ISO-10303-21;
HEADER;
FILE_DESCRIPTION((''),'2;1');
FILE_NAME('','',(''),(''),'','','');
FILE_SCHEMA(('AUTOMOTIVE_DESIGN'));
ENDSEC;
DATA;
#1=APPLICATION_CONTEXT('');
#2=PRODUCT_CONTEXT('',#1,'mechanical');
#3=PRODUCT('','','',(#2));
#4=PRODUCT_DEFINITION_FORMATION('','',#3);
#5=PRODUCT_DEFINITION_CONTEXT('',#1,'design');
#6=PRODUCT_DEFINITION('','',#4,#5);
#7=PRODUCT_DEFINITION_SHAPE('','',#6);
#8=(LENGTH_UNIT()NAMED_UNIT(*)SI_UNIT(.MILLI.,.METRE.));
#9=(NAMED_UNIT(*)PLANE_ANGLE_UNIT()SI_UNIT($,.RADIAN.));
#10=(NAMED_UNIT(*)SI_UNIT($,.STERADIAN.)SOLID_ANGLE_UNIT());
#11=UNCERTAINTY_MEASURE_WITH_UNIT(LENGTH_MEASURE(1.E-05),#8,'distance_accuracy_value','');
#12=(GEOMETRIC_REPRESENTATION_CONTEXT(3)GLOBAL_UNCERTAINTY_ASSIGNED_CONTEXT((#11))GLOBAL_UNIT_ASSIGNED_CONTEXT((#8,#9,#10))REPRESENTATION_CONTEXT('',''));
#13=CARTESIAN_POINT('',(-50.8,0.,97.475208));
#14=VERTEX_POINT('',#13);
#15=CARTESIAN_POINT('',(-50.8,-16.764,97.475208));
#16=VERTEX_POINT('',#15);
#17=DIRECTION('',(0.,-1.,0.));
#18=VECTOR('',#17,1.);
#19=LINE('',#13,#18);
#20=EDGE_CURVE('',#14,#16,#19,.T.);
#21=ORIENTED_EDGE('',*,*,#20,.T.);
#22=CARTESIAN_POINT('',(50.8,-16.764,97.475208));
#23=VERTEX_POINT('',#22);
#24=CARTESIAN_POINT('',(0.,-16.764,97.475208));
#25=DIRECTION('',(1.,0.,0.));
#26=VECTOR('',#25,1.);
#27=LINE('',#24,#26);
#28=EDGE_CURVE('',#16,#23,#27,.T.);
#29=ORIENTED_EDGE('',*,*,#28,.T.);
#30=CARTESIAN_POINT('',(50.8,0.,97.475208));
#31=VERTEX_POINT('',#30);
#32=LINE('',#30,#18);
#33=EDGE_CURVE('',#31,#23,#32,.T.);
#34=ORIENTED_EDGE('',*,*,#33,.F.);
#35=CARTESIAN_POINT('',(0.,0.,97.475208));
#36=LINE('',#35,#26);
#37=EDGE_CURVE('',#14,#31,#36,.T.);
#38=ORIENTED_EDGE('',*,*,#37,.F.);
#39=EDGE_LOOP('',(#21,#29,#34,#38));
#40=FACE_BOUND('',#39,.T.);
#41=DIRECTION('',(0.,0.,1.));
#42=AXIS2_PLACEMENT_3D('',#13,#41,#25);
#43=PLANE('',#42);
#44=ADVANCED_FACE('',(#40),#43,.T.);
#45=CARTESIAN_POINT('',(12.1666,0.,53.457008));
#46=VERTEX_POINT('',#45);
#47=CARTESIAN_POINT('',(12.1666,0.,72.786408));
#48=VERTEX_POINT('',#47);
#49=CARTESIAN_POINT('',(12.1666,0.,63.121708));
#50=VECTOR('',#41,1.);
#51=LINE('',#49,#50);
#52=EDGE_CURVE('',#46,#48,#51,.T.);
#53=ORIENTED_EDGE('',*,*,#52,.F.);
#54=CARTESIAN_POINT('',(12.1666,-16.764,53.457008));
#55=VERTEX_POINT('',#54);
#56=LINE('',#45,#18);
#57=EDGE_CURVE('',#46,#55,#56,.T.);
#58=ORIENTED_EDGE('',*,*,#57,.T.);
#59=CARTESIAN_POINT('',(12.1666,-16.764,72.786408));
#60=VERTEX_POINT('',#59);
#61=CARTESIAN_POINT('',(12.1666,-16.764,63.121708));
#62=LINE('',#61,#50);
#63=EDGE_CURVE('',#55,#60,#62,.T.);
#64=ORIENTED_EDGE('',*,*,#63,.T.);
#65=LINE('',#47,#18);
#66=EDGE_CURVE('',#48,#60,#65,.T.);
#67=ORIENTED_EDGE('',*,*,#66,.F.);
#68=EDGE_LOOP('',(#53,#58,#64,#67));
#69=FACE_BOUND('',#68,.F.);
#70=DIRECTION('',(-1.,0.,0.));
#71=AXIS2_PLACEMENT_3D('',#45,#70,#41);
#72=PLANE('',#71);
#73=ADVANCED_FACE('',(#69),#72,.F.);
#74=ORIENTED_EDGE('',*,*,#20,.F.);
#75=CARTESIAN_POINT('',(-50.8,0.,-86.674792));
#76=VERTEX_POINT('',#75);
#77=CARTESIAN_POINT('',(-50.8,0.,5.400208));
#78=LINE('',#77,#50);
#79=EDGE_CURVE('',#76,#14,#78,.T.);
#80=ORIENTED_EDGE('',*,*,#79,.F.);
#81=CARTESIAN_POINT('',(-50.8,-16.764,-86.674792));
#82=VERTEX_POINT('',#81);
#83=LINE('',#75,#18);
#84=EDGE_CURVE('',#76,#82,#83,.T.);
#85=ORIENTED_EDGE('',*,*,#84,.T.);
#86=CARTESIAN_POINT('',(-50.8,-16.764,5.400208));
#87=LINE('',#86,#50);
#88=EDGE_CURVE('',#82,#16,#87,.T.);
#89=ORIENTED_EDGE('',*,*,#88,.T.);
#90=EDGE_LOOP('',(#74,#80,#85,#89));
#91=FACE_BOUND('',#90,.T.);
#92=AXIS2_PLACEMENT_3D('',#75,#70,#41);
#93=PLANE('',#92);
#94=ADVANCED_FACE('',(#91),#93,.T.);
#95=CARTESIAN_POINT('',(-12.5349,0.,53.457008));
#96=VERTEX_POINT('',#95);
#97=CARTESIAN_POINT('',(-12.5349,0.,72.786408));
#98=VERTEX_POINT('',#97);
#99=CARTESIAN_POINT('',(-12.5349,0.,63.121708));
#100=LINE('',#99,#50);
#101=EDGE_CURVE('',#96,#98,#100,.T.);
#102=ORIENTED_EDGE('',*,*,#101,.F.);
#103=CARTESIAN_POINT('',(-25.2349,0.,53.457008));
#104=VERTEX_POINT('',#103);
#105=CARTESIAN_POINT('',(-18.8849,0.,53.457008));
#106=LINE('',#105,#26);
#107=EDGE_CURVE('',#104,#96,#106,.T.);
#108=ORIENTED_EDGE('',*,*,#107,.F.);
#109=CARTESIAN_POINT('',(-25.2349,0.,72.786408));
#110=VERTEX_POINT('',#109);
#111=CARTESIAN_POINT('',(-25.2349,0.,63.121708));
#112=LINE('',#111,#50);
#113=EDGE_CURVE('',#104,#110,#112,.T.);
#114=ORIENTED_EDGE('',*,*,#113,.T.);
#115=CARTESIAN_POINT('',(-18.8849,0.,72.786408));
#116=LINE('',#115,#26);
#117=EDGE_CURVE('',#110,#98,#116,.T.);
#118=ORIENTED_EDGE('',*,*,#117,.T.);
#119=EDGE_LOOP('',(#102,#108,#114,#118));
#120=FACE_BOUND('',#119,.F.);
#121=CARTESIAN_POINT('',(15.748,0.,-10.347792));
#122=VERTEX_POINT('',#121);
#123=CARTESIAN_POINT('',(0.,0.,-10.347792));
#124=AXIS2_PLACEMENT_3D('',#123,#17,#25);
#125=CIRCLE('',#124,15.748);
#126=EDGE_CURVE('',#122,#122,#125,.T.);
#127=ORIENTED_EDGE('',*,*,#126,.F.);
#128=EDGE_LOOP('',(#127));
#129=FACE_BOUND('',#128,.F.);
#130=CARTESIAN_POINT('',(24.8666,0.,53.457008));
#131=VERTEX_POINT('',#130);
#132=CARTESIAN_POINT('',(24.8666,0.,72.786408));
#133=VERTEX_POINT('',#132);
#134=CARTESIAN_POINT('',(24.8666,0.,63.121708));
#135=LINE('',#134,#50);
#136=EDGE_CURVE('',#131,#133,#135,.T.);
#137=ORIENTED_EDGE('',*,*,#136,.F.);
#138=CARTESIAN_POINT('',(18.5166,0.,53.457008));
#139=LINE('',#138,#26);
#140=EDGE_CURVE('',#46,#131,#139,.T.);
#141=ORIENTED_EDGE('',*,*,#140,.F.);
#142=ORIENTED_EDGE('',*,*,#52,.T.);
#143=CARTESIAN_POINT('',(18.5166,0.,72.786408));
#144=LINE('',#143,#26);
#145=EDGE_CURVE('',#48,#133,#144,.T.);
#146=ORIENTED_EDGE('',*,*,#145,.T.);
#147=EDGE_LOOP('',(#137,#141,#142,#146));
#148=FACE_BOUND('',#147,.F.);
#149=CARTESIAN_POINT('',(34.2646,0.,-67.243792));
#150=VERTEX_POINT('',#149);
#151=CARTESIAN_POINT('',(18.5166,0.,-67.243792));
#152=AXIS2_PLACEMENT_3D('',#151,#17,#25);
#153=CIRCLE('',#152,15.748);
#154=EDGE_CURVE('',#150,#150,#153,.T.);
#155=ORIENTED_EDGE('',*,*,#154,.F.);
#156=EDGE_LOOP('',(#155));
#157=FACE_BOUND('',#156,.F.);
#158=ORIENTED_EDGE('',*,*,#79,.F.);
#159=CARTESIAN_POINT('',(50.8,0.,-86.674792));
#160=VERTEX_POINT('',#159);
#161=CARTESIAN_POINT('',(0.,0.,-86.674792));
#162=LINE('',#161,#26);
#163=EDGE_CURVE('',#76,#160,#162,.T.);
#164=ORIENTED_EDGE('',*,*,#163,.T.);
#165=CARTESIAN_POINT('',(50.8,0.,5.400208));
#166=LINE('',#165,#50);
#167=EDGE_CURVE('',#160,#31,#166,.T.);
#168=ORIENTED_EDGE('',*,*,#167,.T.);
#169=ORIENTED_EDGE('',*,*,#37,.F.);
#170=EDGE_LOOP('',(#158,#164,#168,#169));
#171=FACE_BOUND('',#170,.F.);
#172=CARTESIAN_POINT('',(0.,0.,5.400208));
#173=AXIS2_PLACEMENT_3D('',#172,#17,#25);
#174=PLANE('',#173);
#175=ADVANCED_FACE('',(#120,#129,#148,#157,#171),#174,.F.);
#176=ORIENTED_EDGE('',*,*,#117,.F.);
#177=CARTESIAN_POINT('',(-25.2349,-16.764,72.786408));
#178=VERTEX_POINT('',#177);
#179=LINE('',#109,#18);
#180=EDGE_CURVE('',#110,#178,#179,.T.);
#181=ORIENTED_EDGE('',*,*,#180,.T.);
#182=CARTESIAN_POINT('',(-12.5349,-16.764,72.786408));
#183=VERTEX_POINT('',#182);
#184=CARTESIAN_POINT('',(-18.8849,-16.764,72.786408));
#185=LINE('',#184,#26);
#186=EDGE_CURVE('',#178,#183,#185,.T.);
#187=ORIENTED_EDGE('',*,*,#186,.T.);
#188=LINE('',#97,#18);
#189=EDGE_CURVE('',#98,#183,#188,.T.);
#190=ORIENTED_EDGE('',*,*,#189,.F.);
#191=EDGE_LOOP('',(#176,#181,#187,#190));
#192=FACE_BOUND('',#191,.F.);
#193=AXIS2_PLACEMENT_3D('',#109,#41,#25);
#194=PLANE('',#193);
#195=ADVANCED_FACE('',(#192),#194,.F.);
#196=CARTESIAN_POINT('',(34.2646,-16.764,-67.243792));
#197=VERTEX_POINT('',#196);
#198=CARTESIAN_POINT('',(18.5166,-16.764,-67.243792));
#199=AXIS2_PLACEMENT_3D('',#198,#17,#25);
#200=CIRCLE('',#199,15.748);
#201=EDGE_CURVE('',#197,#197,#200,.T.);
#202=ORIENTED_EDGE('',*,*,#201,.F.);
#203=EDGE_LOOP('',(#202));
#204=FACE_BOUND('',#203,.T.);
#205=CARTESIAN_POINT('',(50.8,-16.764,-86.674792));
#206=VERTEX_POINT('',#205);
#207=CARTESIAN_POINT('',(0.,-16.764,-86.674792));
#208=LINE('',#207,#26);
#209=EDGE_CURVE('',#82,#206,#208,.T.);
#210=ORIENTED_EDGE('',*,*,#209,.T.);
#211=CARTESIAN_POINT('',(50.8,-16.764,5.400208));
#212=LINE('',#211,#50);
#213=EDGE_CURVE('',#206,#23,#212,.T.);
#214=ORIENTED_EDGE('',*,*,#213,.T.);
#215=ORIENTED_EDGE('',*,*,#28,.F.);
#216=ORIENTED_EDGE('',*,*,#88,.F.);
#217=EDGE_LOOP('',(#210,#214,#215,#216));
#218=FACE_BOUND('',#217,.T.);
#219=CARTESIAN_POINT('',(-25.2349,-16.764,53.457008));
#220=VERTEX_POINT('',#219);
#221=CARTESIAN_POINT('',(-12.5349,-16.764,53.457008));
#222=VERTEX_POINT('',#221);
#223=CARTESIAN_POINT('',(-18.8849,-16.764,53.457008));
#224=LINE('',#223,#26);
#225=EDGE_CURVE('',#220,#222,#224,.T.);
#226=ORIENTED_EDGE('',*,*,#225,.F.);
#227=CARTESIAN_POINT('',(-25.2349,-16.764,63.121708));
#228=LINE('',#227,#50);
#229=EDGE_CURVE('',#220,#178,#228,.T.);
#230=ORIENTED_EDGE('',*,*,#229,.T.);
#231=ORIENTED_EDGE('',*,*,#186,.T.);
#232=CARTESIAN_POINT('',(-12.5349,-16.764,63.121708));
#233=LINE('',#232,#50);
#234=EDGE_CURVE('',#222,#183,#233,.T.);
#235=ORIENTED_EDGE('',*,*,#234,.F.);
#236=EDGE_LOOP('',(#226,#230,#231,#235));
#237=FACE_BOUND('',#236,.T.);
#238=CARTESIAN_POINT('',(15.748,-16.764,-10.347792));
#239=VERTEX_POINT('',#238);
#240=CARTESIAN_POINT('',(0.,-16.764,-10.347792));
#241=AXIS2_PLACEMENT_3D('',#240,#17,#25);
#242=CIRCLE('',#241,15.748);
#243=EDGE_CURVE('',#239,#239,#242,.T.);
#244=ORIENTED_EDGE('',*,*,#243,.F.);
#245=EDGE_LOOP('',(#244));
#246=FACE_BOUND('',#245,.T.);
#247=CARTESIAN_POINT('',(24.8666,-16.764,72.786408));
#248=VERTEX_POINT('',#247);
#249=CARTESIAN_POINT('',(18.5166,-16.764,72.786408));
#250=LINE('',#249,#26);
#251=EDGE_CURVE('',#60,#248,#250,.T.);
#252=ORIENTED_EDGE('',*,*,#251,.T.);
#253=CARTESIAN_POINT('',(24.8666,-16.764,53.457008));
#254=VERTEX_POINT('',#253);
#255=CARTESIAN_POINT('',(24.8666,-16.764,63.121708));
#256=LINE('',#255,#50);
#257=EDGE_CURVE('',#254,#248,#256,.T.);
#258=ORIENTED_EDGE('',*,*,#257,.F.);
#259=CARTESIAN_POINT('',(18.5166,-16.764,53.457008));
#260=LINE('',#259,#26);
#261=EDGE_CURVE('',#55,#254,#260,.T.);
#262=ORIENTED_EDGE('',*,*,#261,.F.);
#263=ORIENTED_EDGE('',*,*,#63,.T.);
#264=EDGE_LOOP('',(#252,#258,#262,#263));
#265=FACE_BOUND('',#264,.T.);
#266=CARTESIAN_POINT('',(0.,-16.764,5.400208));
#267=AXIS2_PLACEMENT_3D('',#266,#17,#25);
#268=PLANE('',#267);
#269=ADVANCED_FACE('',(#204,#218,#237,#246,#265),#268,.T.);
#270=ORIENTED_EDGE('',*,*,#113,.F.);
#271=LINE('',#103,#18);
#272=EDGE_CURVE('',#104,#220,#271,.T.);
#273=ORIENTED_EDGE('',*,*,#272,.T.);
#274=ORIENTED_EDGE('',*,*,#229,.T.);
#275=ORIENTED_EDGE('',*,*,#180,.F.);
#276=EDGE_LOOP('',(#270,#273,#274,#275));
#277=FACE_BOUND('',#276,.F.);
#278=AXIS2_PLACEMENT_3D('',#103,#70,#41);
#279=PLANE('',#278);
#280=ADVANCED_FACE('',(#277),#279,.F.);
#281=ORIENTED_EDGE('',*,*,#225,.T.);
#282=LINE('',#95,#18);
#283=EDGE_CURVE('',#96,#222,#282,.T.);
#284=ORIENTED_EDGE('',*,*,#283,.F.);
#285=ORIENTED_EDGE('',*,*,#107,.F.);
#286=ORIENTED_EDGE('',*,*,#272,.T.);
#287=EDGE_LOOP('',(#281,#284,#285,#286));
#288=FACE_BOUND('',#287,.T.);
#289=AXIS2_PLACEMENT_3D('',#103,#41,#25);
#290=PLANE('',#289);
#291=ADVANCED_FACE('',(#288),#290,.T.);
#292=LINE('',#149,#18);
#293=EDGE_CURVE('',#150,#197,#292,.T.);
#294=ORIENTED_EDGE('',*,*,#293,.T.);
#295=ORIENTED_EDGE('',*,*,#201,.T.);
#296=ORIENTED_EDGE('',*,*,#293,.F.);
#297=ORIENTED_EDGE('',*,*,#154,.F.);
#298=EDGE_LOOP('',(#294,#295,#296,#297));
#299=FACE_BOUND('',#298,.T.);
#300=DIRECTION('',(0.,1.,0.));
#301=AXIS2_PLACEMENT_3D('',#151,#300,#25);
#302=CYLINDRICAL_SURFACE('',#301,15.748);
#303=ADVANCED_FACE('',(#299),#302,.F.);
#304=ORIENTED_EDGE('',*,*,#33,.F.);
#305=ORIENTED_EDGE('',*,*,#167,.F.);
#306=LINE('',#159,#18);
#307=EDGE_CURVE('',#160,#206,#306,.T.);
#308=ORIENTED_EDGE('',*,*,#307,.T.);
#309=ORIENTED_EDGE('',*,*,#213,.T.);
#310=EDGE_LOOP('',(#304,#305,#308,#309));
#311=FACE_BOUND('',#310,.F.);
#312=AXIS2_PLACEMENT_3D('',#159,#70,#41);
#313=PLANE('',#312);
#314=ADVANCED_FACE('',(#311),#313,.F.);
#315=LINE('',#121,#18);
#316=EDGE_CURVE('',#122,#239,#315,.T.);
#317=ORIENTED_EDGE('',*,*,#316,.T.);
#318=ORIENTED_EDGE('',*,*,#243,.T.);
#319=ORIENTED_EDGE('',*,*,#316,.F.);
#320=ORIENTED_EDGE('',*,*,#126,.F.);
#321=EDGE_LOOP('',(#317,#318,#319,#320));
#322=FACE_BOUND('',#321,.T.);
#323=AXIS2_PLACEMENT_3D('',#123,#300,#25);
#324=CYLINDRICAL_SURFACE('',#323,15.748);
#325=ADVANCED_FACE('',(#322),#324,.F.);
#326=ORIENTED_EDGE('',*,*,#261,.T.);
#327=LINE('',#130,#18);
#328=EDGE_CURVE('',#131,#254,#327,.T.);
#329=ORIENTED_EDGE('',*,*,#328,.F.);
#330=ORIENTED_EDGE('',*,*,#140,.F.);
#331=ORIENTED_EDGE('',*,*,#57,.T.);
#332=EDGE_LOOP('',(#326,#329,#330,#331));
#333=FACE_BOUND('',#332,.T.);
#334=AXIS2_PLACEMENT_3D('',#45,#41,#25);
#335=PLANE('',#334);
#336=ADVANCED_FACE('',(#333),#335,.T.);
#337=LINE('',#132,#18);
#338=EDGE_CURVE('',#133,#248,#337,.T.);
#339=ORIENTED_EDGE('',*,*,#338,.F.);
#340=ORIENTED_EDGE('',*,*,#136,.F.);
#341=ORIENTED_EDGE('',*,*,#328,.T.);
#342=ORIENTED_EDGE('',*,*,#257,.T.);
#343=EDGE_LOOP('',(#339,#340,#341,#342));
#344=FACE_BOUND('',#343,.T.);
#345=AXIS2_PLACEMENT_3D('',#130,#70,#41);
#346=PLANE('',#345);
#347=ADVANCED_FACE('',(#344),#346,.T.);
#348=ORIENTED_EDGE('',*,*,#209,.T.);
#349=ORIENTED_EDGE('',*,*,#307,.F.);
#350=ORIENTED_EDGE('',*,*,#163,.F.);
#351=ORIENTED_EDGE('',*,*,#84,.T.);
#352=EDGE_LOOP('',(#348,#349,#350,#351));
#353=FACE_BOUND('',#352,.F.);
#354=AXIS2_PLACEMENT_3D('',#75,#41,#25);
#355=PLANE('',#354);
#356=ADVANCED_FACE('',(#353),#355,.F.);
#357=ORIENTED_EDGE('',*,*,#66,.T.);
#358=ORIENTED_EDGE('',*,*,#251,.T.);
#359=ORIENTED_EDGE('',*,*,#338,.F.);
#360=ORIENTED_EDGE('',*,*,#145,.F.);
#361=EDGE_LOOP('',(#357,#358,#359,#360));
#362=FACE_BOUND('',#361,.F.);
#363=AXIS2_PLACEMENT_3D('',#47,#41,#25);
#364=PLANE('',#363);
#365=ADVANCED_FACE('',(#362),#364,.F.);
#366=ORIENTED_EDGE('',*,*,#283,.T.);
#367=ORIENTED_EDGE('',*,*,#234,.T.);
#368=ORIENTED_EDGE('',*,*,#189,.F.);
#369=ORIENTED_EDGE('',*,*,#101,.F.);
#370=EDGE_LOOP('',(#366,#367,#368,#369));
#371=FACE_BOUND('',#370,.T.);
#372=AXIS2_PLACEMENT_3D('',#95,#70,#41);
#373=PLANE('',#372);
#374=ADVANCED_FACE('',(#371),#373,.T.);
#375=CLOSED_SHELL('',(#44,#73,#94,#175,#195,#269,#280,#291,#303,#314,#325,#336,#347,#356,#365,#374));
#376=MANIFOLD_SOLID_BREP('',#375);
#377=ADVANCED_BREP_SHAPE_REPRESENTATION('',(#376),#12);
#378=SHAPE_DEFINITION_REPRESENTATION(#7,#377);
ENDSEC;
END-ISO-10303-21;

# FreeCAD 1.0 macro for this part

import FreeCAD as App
import Part
import Sketcher
Q = App.Units.Quantity

doc = App.newDocument("Part")
body = doc.addObject("PartDesign::Body", "Body")

# Sketch on XZ plane
sketch1 = body.newObject("Sketcher::SketchObject", "Sketch")
sketch1.AttachmentSupport = (doc.getObject("XZ_Plane"), [""])
sketch1.MapMode = "FlatFace"
sketch1.addGeometry(Part.LineSegment(App.Vector(-51, 97, 0), App.Vector(-51, -87, 0)), False)
sketch1.addGeometry(Part.LineSegment(App.Vector(-51, -87, 0), App.Vector(51, -87, 0)), False)
sketch1.addGeometry(Part.LineSegment(App.Vector(51, -87, 0), App.Vector(51, 97, 0)), False)
sketch1.addGeometry(Part.LineSegment(App.Vector(51, 97, 0), App.Vector(-51, 97, 0)), False)
sketch1.addGeometry(Part.Circle(App.Vector(0, -10, 0), App.Vector(0, 0, 1), 16), False)
sketch1.addGeometry(Part.Circle(App.Vector(19, -67, 0), App.Vector(0, 0, 1), 16), False)
sketch1.addGeometry(Part.LineSegment(App.Vector(-13, 53, 0), App.Vector(-25, 53, 0)), False)
sketch1.addGeometry(Part.LineSegment(App.Vector(-25, 53, 0), App.Vector(-25, 73, 0)), False)
sketch1.addGeometry(Part.LineSegment(App.Vector(-25, 73, 0), App.Vector(-13, 73, 0)), False)
sketch1.addGeometry(Part.LineSegment(App.Vector(-13, 73, 0), App.Vector(-13, 53, 0)), False)
sketch1.addGeometry(Part.LineSegment(App.Vector(25, 53, 0), App.Vector(12, 53, 0)), False)
sketch1.addGeometry(Part.LineSegment(App.Vector(12, 53, 0), App.Vector(12, 73, 0)), False)
sketch1.addGeometry(Part.LineSegment(App.Vector(12, 73, 0), App.Vector(25, 73, 0)), False)
sketch1.addGeometry(Part.LineSegment(App.Vector(25, 73, 0), App.Vector(25, 53, 0)), False)
sketch1.addConstraint(Sketcher.Constraint("Coincident", 0, 2, 1, 1))
sketch1.addConstraint(Sketcher.Constraint("Coincident", 1, 2, 2, 1))
sketch1.addConstraint(Sketcher.Constraint("Coincident", 2, 2, 3, 1))
sketch1.addConstraint(Sketcher.Constraint("Coincident", 3, 2, 0, 1))
sketch1.addConstraint(Sketcher.Constraint("Coincident", 6, 2, 7, 1))
sketch1.addConstraint(Sketcher.Constraint("Coincident", 7, 2, 8, 1))
sketch1.addConstraint(Sketcher.Constraint("Coincident", 8, 2, 9, 1))
sketch1.addConstraint(Sketcher.Constraint("Coincident", 9, 2, 6, 1))
sketch1.addConstraint(Sketcher.Constraint("Coincident", 10, 2, 11, 1))
sketch1.addConstraint(Sketcher.Constraint("Coincident", 11, 2, 12, 1))
sketch1.addConstraint(Sketcher.Constraint("Coincident", 12, 2, 13, 1))
sketch1.addConstraint(Sketcher.Constraint("Coincident", 13, 2, 10, 1))
sketch1.addConstraint(Sketcher.Constraint("Vertical", 0))
sketch1.addConstraint(Sketcher.Constraint("Horizontal", 1))
sketch1.addConstraint(Sketcher.Constraint("Vertical", 2))
sketch1.addConstraint(Sketcher.Constraint("Horizontal", 3))
sketch1.addConstraint(Sketcher.Constraint("Horizontal", 6))
sketch1.addConstraint(Sketcher.Constraint("Vertical", 7))
sketch1.addConstraint(Sketcher.Constraint("Horizontal", 8))
sketch1.addConstraint(Sketcher.Constraint("Vertical", 9))
sketch1.addConstraint(Sketcher.Constraint("Horizontal", 10))
sketch1.addConstraint(Sketcher.Constraint("Vertical", 11))
sketch1.addConstraint(Sketcher.Constraint("Horizontal", 12))
sketch1.addConstraint(Sketcher.Constraint("Vertical", 13))
sketch1.addConstraint(Sketcher.Constraint("Equal", 4, 5))
sketch1.addConstraint(Sketcher.Constraint("PointOnObject", 4, 3, -2))
sketch1.addConstraint(Sketcher.Constraint("Horizontal", 9, 2, 10, 2))
sketch1.addConstraint(Sketcher.Constraint("Horizontal", 8, 2, 11, 2))
sketch1.addConstraint(Sketcher.Constraint("Equal", 8, 10))
sketch1.addConstraint(Sketcher.Constraint("Diameter", 4, Q("1.24 in")))
sketch1.addConstraint(Sketcher.Constraint("DistanceX", 1, 1, 1, 2, Q("4 in")))
sketch1.addConstraint(Sketcher.Constraint("DistanceX", 6, 2, 6, 1, Q("0.5 in")))
sketch1.addConstraint(Sketcher.Constraint("DistanceX", 0, 2, -1, 1, Q("2 in")))
sketch1.addConstraint(Sketcher.Constraint("DistanceY", 0, 2, 0, 1, Q("7.25 in")))
sketch1.addConstraint(Sketcher.Constraint("DistanceY", 7, 1, 7, 2, Q("0.761 in")))
sketch1.addConstraint(Sketcher.Constraint("DistanceY", 5, 3, 4, 3, Q("2.24 in")))
sketch1.addConstraint(Sketcher.Constraint("DistanceX", -1, 1, 5, 3, Q("0.729 in")))
sketch1.addConstraint(Sketcher.Constraint("DistanceX", -1, 1, 10, 2, Q("0.479 in")))
sketch1.addConstraint(Sketcher.Constraint("DistanceY", 0, 2, 5, 3, Q("0.765 in")))
sketch1.addConstraint(Sketcher.Constraint("DistanceY", 6, 2, 3, 2, Q("1.733 in")))
sketch1.addConstraint(Sketcher.Constraint("DistanceX", 6, 2, -1, 1, Q("0.9935 in")))
sketch1.addConstraint(Sketcher.Constraint("DistanceY", 5, 3, -1, 1, Q("67.243792 mm")))
pad1 = body.newObject("PartDesign::Pad", "Pad")
pad1.Profile = sketch1
pad1.Length = Q("0.66 in")

doc.recompute()
